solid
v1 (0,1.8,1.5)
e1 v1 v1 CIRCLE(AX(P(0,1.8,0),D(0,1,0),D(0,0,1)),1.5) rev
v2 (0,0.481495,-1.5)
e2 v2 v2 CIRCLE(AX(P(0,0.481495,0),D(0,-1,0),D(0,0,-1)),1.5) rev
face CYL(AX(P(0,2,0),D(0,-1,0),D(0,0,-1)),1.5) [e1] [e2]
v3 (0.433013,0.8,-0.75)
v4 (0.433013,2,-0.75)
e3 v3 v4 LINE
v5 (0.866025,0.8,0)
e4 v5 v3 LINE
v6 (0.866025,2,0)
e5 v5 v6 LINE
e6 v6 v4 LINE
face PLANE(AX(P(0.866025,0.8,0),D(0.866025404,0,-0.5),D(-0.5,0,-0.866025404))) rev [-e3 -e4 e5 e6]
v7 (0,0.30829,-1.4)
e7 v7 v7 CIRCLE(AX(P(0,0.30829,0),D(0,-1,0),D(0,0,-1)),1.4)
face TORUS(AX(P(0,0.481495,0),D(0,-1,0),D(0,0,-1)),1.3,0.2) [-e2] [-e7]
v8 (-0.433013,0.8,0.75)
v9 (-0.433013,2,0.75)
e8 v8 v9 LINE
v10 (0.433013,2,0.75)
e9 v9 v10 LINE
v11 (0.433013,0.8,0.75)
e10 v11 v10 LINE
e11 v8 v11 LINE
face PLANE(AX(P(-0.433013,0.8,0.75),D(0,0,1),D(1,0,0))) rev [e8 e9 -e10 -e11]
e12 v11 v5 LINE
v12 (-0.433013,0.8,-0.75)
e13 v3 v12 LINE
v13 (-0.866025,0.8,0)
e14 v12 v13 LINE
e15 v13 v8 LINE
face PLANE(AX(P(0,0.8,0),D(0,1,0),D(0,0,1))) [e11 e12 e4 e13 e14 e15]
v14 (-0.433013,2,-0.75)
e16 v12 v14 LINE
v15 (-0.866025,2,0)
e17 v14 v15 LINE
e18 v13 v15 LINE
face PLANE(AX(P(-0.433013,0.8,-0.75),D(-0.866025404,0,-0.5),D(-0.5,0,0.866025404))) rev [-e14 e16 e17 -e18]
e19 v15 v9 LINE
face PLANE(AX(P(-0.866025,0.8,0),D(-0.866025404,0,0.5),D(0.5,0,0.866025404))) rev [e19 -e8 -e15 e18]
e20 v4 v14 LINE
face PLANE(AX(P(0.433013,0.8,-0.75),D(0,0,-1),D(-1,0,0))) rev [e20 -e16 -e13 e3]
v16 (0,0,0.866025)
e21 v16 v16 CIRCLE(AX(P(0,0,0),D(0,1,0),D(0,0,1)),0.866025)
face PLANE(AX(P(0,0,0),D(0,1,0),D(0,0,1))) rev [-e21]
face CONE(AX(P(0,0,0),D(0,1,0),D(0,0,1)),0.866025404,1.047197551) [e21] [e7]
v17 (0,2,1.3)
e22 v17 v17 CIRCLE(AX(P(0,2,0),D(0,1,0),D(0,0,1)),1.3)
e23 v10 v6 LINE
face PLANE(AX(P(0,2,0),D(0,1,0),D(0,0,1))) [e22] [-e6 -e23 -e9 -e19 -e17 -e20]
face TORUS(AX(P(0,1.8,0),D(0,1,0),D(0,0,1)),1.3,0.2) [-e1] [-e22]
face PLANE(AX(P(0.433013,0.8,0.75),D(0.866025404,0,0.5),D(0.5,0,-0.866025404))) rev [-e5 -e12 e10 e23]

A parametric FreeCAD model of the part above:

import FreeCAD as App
import Part
import Sketcher
Q = App.Units.Quantity


def edges_at(feature, points):
    """Names of the edges that pass closest to the given points."""
    edges = feature.Shape.Edges
    near = lambda p: min(range(len(edges)), key=lambda i: edges[i].distToShape(Part.Vertex(*p))[0])
    return sorted({f"Edge{near(p) + 1}" for p in points})


def add_polygon(sketch, points):
    """Adds a closed chain of lines whose ends are joined by coincident constraints."""
    first, n = sketch.GeometryCount, len(points)
    for a, b in zip(points, points[1:] + points[:1]):
        sketch.addGeometry(Part.LineSegment(App.Vector(*a, 0), App.Vector(*b, 0)), False)
    for i in range(n):
        sketch.addConstraint(Sketcher.Constraint("Coincident", first + i, 2, first + (i + 1) % n, 1))

doc = App.newDocument("Part")
body = doc.addObject("PartDesign::Body", "Body")

sketch1 = body.newObject("Sketcher::SketchObject", "Sketch")
sketch1.AttachmentSupport = (doc.getObject("XZ_Plane"), [""])
sketch1.MapMode = "FlatFace"
sketch1.addGeometry(Part.Circle(App.Vector(0, 0, 0), App.Vector(0, 0, 1), 1.5), False)
sketch1.addConstraint([
    Sketcher.Constraint("Coincident", 0, 3, -1, 1),
    Sketcher.Constraint("Diameter", 0, Q("3 mm")),
])
pad1 = body.newObject("PartDesign::Pad", "Pad")
pad1.Profile = sketch1
pad1.Length = 2
pad1.Reversed = True

sketch2 = body.newObject("Sketcher::SketchObject", "Sketch001")
sketch2.AttachmentSupport = (doc.getObject("XZ_Plane"), [""])
sketch2.MapMode = "FlatFace"
sketch2.AttachmentOffset = App.Placement(App.Vector(0, 0, -2), App.Rotation())
add_polygon(sketch2, [(0.9, 0), (0.4, -0.8), (-0.4, -0.8), (-0.9, 0), (-0.4, 0.8), (0.4, 0.8)])
sketch2.addConstraint([
    Sketcher.Constraint("Horizontal", 1),
    Sketcher.Constraint("Horizontal", 4),
    Sketcher.Constraint("Symmetric", 0, 2, 3, 2, -1, 1),
    Sketcher.Constraint("Symmetric", 2, 2, 5, 2, -1, 1),
    Sketcher.Constraint("PointOnObject", 2, 2, -1),
    Sketcher.Constraint("Parallel", 2, 5),
    Sketcher.Constraint("Vertical", 1, 2, 3, 2),
    Sketcher.Constraint("Angle", 0, Q("-120 deg")),
    Sketcher.Constraint("DistanceY", 1, 2, 3, 2, Q("1.5 mm")),
    Sketcher.Constraint("DistanceX", 1, 2, 1, 1, Q("0.866025 mm")),
])
pocket1 = body.newObject("PartDesign::Pocket", "Pocket")
pocket1.Profile = sketch2
pocket1.Length = 1.2
pocket1.Reversed = True

sketch3 = body.newObject("Sketcher::SketchObject", "Sketch002")
sketch3.AttachmentSupport = (doc.getObject("XY_Plane"), [""])
sketch3.MapMode = "FlatFace"
add_polygon(sketch3, [(1.5, 0.37), (0.87, 0), (1.5, 0)])
sketch3.addConstraint([
    Sketcher.Constraint("Horizontal", 1),
    Sketcher.Constraint("Vertical", 2),
    Sketcher.Constraint("PointOnObject", 0, 2, -1),
    Sketcher.Constraint("Angle", 0, Q("-150 deg")),
    Sketcher.Constraint("DistanceX", -1, 1, 1, 2, Q("1.5 mm")),
    Sketcher.Constraint("Distance", 0, Q("0.732051 mm")),
])
groove = body.newObject("PartDesign::Groove", "Groove")
groove.Profile = sketch3
groove.ReferenceAxis = (sketch3, ["V_Axis"])
groove.Angle = 360
doc.recompute()

fillet = body.newObject("PartDesign::Fillet", "Fillet")
fillet.Base = (groove, edges_at(groove, [(-1.5, 0.366, 0), (-1.5, 2, 0)]))
fillet.Radius = 0.2

doc.recompute()
